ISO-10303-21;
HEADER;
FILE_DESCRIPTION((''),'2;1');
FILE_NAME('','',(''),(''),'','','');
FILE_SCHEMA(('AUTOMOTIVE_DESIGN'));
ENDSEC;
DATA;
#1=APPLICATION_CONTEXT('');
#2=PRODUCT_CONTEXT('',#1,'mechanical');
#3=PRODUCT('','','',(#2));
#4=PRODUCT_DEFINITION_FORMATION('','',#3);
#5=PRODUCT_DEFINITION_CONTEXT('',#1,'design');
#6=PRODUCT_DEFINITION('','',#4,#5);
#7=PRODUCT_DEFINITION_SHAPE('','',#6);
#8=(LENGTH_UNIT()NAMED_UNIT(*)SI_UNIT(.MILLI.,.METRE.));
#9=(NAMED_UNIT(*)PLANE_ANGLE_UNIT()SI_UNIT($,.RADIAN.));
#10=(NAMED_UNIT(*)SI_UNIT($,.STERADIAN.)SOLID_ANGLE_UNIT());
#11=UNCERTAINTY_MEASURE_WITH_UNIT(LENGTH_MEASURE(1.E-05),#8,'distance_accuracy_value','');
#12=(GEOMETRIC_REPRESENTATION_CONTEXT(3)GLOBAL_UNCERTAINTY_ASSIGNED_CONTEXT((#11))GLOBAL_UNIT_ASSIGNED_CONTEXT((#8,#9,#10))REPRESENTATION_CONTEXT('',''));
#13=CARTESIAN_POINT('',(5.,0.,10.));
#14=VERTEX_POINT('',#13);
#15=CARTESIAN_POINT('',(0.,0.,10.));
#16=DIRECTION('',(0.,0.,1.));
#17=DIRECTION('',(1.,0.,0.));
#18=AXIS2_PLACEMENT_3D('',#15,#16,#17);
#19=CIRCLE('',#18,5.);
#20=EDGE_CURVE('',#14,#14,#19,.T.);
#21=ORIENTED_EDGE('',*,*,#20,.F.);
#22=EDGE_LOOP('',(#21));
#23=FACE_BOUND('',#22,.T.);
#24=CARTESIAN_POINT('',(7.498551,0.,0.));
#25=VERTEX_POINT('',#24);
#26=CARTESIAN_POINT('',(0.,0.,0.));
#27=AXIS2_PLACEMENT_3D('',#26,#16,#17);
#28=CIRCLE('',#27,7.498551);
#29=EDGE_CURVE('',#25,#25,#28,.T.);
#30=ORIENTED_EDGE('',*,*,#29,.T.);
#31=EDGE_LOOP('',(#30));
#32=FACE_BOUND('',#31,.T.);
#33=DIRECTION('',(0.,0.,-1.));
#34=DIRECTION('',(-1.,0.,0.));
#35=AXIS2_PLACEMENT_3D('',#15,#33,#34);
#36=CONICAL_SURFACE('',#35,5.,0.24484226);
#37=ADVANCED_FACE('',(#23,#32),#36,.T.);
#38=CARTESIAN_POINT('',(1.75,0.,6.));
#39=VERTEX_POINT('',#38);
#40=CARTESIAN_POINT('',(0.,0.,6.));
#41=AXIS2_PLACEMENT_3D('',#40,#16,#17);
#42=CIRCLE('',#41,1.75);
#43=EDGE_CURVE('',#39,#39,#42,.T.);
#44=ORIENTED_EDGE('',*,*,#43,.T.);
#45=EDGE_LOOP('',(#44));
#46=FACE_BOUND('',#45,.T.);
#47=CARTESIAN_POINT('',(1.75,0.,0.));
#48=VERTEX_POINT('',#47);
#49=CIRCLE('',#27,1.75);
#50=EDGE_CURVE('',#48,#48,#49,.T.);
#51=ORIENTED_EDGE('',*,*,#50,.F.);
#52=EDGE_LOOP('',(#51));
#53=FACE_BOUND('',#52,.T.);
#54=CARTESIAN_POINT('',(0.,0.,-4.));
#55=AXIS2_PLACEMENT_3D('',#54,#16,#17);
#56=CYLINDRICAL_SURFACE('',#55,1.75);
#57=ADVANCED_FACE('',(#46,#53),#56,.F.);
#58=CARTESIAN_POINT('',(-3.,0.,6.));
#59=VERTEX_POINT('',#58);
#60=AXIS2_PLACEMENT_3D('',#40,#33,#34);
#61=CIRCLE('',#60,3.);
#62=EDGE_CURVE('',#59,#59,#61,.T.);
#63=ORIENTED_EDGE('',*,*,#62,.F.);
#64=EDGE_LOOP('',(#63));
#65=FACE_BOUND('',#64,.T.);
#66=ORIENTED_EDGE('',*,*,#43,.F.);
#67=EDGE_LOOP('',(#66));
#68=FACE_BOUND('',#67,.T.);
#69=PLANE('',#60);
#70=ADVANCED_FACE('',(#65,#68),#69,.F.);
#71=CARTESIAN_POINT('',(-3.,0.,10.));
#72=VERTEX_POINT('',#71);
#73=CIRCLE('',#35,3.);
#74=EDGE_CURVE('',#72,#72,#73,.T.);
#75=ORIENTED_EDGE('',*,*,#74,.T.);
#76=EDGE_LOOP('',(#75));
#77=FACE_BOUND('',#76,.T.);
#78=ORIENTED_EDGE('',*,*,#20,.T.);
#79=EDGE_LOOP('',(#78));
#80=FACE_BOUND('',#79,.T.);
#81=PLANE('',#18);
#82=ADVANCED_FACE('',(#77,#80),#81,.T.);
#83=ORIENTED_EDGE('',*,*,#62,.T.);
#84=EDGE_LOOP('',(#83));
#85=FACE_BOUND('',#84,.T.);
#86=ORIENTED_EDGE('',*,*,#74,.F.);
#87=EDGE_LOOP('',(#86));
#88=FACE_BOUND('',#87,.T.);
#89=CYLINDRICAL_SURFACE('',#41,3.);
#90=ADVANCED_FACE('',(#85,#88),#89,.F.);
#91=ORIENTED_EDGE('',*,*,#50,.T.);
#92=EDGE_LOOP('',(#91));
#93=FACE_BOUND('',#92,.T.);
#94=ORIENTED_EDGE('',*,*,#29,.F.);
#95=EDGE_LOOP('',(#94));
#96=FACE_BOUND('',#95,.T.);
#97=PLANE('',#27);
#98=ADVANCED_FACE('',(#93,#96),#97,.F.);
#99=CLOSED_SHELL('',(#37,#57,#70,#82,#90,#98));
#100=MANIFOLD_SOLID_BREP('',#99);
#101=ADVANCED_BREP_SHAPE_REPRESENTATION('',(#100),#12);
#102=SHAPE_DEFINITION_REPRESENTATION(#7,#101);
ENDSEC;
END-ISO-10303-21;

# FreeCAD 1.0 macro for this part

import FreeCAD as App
import Part
import Sketcher

doc = App.newDocument("Part")
params = doc.addObject("Spreadsheet::Sheet", "Params")
for row, (alias, value) in enumerate([
    ("sketch2_diameter", "10 mm"),
    ("sketch3_diameter", "6 mm"),
    ("pocket1_length", "4 mm"),
    ("sketch4_diameter", "3.5 mm"),
    ("pocket2_length", "10 mm"),
], start=1):
    params.set(f"A{row}", alias)
    params.set(f"B{row}", "=" + value)
    params.setAlias(f"B{row}", alias)

body = doc.addObject("PartDesign::Body", "Body")

sketch1 = body.newObject("Sketcher::SketchObject", "Sketch")
sketch1.AttachmentSupport = (doc.getObject("XY_Plane"), [""])
sketch1.MapMode = "FlatFace"
sketch1.addGeometry(Part.Circle(App.Vector(0, 0, 0), App.Vector(0, 0, 1), 7), False)
sketch1.addConstraint(Sketcher.Constraint("Coincident", 0, 3, -1, 1))
sketch1.addConstraint(Sketcher.Constraint("Diameter", 0, 14.997102))

sketch2 = body.newObject("Sketcher::SketchObject", "Sketch001")
sketch2.AttachmentSupport = (doc.getObject("XY_Plane"), [""])
sketch2.MapMode = "FlatFace"
sketch2.AttachmentOffset = App.Placement(App.Vector(0, 0, 10), App.Rotation())
sketch2.addGeometry(Part.Circle(App.Vector(0, 0, 0), App.Vector(0, 0, 1), 5), False)
sketch2.addConstraint(Sketcher.Constraint("Coincident", 0, 3, -1, 1))
sketch2.addConstraint(Sketcher.Constraint("Diameter", 0, 10.0))
sketch2.setExpression("Constraints[1]", "Params.sketch2_diameter")

additiveloft = body.newObject("PartDesign::AdditiveLoft", "AdditiveLoft")
additiveloft.Profile = sketch1
additiveloft.Sections = [sketch2]

sketch3 = body.newObject("Sketcher::SketchObject", "Sketch002")
sketch3.AttachmentSupport = (doc.getObject("XY_Plane"), [""])
sketch3.MapMode = "FlatFace"
sketch3.AttachmentOffset = App.Placement(App.Vector(0, 0, 10), App.Rotation())
sketch3.addGeometry(Part.Circle(App.Vector(0, 0, 0), App.Vector(0, 0, 1), 3), False)
sketch3.addConstraint(Sketcher.Constraint("Coincident", 0, 3, -1, 1))
sketch3.addConstraint(Sketcher.Constraint("Diameter", 0, 6.0))
sketch3.setExpression("Constraints[1]", "Params.sketch3_diameter")
pocket1 = body.newObject("PartDesign::Pocket", "Pocket")
pocket1.Profile = sketch3
pocket1.setExpression("Length", "Params.pocket1_length")

sketch4 = body.newObject("Sketcher::SketchObject", "Sketch003")
sketch4.AttachmentSupport = (doc.getObject("XY_Plane"), [""])
sketch4.MapMode = "FlatFace"
sketch4.AttachmentOffset = App.Placement(App.Vector(0, 0, 6), App.Rotation())
sketch4.addGeometry(Part.Circle(App.Vector(0, 0, 0), App.Vector(0, 0, 1), 1.8), False)
sketch4.addConstraint(Sketcher.Constraint("Coincident", 0, 3, -1, 1))
sketch4.addConstraint(Sketcher.Constraint("Diameter", 0, 3.5))
sketch4.setExpression("Constraints[1]", "Params.sketch4_diameter")
pocket2 = body.newObject("PartDesign::Pocket", "Pocket001")
pocket2.Profile = sketch4
pocket2.setExpression("Length", "Params.pocket2_length")

doc.recompute()
